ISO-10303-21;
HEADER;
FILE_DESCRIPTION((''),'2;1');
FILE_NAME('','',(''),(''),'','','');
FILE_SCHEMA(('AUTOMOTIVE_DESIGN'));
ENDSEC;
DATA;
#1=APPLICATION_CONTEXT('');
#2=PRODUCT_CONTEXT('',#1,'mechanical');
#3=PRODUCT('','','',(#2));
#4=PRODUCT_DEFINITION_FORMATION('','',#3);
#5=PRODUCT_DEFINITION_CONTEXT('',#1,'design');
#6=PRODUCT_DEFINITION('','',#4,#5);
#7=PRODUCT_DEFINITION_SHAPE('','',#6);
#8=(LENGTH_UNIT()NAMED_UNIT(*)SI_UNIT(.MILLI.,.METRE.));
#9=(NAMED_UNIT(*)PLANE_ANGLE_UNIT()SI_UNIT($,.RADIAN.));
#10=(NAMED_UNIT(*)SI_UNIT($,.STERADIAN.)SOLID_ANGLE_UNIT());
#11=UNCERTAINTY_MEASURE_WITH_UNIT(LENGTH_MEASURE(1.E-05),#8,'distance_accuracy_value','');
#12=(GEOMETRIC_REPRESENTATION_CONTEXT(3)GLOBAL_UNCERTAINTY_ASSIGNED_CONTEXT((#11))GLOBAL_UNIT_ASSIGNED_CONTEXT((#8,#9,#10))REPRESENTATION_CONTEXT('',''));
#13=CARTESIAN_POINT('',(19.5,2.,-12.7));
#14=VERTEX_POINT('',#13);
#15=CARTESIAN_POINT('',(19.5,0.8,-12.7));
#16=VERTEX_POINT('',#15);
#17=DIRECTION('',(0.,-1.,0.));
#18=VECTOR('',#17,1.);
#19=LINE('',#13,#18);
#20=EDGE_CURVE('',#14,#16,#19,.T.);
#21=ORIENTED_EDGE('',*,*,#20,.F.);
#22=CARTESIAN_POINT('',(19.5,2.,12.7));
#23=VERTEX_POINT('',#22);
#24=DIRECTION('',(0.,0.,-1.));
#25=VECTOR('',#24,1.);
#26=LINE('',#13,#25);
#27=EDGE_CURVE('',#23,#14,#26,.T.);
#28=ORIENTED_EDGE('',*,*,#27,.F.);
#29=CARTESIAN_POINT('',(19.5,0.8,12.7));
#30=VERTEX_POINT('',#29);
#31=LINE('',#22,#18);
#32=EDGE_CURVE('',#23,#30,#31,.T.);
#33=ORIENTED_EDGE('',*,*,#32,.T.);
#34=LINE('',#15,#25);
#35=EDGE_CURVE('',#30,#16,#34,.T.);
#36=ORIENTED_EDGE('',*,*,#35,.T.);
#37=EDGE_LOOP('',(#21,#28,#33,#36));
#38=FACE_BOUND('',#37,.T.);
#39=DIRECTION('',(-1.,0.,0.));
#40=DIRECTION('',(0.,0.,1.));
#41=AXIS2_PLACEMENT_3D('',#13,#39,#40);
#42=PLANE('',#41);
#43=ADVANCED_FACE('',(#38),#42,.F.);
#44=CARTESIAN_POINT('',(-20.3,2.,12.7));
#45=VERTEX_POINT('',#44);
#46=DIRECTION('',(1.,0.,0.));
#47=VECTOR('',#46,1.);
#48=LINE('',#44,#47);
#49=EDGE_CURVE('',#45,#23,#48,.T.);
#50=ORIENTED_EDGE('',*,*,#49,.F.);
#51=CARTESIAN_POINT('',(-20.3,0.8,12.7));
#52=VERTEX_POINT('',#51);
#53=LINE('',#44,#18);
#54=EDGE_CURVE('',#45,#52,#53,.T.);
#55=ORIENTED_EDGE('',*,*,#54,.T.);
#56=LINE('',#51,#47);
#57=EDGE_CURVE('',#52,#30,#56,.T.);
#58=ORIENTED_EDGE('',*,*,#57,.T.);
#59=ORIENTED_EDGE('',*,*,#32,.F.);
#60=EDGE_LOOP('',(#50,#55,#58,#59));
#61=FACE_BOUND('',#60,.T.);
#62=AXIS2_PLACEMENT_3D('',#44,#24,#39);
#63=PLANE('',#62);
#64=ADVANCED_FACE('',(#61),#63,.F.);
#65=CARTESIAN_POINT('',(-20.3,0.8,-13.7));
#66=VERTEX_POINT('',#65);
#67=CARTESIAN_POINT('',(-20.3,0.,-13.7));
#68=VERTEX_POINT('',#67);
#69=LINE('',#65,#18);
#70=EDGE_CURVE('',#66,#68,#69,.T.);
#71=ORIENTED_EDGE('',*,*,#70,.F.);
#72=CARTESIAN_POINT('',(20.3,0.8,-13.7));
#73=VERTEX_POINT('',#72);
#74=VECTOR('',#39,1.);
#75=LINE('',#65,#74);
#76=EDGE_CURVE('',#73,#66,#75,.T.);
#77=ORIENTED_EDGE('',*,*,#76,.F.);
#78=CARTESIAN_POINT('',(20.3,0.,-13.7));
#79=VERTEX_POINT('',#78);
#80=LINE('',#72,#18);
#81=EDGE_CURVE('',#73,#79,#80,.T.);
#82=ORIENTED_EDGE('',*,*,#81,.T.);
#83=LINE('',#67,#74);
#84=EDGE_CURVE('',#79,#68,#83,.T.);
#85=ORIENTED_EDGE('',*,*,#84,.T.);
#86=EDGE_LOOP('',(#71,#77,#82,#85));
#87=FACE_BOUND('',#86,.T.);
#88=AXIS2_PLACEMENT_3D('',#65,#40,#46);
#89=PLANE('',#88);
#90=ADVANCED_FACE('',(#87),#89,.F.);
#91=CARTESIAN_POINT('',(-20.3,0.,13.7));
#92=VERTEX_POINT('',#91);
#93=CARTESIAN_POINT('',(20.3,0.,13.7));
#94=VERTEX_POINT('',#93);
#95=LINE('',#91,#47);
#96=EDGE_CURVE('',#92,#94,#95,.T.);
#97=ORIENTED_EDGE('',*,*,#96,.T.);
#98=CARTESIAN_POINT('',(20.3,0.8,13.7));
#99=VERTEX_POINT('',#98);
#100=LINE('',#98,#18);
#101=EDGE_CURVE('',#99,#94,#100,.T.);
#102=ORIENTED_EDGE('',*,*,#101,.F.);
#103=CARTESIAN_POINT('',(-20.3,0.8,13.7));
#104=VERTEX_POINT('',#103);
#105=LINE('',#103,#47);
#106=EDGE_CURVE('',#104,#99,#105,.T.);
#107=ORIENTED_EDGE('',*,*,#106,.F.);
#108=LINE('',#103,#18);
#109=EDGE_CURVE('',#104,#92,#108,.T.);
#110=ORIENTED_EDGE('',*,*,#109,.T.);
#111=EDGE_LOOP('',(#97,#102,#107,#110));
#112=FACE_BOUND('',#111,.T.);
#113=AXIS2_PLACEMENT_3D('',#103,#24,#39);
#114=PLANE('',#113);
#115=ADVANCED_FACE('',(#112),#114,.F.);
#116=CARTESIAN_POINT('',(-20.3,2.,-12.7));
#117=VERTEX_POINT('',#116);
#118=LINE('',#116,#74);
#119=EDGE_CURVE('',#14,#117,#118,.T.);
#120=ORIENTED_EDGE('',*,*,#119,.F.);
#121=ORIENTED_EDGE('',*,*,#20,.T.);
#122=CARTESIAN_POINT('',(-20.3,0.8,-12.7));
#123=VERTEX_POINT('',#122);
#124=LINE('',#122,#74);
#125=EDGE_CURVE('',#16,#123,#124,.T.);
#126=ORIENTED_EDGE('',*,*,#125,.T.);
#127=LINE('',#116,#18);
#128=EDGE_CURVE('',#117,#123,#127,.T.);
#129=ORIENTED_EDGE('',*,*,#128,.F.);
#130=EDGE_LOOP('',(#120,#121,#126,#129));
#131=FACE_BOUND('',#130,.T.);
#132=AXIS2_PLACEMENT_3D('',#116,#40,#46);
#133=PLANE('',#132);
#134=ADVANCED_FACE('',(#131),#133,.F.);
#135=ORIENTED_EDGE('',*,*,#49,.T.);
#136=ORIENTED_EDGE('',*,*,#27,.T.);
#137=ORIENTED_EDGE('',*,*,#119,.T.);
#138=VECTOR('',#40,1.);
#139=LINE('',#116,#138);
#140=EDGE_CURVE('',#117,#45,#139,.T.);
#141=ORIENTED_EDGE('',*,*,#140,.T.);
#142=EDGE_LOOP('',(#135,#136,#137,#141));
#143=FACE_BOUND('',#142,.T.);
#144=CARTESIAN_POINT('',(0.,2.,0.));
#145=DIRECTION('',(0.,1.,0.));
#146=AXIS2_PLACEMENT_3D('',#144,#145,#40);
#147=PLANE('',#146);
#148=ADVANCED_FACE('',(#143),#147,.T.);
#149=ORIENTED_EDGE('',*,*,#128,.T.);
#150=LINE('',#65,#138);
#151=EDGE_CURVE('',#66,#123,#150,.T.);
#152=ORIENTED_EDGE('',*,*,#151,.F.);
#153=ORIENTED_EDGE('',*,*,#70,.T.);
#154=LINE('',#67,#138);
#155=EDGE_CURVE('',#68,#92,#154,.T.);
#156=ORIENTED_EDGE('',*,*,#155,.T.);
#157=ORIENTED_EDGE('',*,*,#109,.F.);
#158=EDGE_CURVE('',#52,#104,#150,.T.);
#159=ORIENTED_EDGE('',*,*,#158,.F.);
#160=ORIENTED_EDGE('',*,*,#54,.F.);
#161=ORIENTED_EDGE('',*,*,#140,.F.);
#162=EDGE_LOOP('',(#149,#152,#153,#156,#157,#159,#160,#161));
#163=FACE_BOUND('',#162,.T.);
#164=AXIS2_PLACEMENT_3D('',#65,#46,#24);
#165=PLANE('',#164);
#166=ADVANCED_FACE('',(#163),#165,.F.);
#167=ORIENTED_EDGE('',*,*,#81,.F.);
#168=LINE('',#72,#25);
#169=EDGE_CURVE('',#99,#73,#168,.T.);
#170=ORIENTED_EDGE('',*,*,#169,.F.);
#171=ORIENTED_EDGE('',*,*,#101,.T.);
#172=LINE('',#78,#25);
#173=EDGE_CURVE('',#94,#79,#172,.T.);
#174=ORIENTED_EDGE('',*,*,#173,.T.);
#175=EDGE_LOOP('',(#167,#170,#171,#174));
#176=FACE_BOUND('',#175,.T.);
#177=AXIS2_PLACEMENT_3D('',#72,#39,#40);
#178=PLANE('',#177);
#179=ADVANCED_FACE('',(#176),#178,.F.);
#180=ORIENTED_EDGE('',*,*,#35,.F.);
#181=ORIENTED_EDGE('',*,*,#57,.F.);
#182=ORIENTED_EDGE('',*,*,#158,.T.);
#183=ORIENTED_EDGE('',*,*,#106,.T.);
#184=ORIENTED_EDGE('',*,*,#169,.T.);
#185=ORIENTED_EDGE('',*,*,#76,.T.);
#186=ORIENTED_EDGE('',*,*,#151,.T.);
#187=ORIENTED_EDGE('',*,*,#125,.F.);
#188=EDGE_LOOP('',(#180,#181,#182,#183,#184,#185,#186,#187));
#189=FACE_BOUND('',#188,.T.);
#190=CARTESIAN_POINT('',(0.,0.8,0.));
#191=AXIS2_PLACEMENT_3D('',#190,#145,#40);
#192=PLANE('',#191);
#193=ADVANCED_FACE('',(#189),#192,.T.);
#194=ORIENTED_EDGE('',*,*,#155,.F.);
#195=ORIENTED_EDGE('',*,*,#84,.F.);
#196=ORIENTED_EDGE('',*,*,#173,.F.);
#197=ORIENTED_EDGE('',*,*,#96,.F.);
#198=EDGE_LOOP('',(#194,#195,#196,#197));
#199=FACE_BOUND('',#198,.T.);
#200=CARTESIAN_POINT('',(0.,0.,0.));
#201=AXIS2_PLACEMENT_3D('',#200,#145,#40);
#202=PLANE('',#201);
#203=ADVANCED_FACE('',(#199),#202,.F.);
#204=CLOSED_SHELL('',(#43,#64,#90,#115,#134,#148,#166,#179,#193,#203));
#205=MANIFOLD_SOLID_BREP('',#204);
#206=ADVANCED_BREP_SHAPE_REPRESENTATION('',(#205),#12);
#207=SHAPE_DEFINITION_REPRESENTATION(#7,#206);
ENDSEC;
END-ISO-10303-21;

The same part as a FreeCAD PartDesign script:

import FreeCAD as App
import Part
import Sketcher

V = App.Vector
Q = App.Units.Quantity

doc = App.newDocument("Part")
params = doc.addObject("Spreadsheet::Sheet", "Params")
for row, (alias, value) in enumerate([
    ("sketch1_width", "40.6 mm"),
    ("sketch1_height", "27.4 mm"),
    ("pad1_length", "0.8 mm"),
    ("sketch2_width", "39.8 mm"),
    ("sketch2_height", "25.4 mm"),
    ("pad2_length", "1.2 mm"),
], start=1):
    params.set(f"A{row}", alias)
    params.set(f"B{row}", "=" + value)
    params.setAlias(f"B{row}", alias)

body = doc.addObject("PartDesign::Body", "Body")

# Sketch on XZ plane
sketch1 = doc.addObject("Sketcher::SketchObject", "Sketch")
body.addObject(sketch1)
sketch1.AttachmentSupport = (doc.XZ_Plane, [""])
sketch1.MapMode = "FlatFace"
sketch1.addGeometry([
    Part.LineSegment(V(-20, -14, 0), V(-20, 14, 0)),
    Part.LineSegment(V(-20, 14, 0), V(20, 14, 0)),
    Part.LineSegment(V(20, 14, 0), V(20, -14, 0)),
    Part.LineSegment(V(20, -14, 0), V(-20, -14, 0)),
], False)
sketch1.addConstraint([
    Sketcher.Constraint("Coincident", 0, 2, 1, 1),
    Sketcher.Constraint("Coincident", 1, 2, 2, 1),
    Sketcher.Constraint("Coincident", 2, 2, 3, 1),
    Sketcher.Constraint("Coincident", 3, 2, 0, 1),
    Sketcher.Constraint("Vertical", 0),
    Sketcher.Constraint("Horizontal", 1),
    Sketcher.Constraint("Vertical", 2),
    Sketcher.Constraint("Horizontal", 3),
    Sketcher.Constraint("Symmetric", 0, 2, 2, 2, -1, 1),
    Sketcher.Constraint("DistanceX", 1, 1, 1, 2, Q("40.6 mm")),
    Sketcher.Constraint("DistanceY", 0, 1, 0, 2, Q("27.4 mm")),
])
sketch1.setExpression("Constraints[9]", "Params.sketch1_width")
sketch1.setExpression("Constraints[10]", "Params.sketch1_height")
pad1 = doc.addObject("PartDesign::Pad", "Pad")
body.addObject(pad1)
pad1.Profile = sketch1
pad1.setExpression("Length", "Params.pad1_length")
pad1.Reversed = True

# Sketch on XZ plane
sketch2 = doc.addObject("Sketcher::SketchObject", "Sketch001")
body.addObject(sketch2)
sketch2.AttachmentSupport = (doc.XZ_Plane, [""])
sketch2.MapMode = "FlatFace"
sketch2.AttachmentOffset = App.Placement(V(0, 0, -0.8), App.Rotation())
sketch2.addGeometry([
    Part.LineSegment(V(-20, -13, 0), V(-20, 13, 0)),
    Part.LineSegment(V(-20, 13, 0), V(20, 13, 0)),
    Part.LineSegment(V(20, 13, 0), V(20, -13, 0)),
    Part.LineSegment(V(20, -13, 0), V(-20, -13, 0)),
], False)
sketch2.addConstraint([
    Sketcher.Constraint("Coincident", 0, 2, 1, 1),
    Sketcher.Constraint("Coincident", 1, 2, 2, 1),
    Sketcher.Constraint("Coincident", 2, 2, 3, 1),
    Sketcher.Constraint("Coincident", 3, 2, 0, 1),
    Sketcher.Constraint("Vertical", 0),
    Sketcher.Constraint("Horizontal", 1),
    Sketcher.Constraint("Vertical", 2),
    Sketcher.Constraint("Horizontal", 3),
    Sketcher.Constraint("DistanceX", 1, 1, 1, 2, Q("39.8 mm")),
    Sketcher.Constraint("DistanceY", 0, 1, 0, 2, Q("25.4 mm")),
    Sketcher.Constraint("DistanceX", 0, 2, -1, 1, Q("20.3 mm")),
    Sketcher.Constraint("DistanceY", -1, 1, 0, 2, Q("12.7 mm")),
])
sketch2.setExpression("Constraints[8]", "Params.sketch2_width")
sketch2.setExpression("Constraints[9]", "Params.sketch2_height")
pad2 = doc.addObject("PartDesign::Pad", "Pad001")
body.addObject(pad2)
pad2.Profile = sketch2
pad2.setExpression("Length", "Params.pad2_length")
pad2.Reversed = True

doc.recompute()
